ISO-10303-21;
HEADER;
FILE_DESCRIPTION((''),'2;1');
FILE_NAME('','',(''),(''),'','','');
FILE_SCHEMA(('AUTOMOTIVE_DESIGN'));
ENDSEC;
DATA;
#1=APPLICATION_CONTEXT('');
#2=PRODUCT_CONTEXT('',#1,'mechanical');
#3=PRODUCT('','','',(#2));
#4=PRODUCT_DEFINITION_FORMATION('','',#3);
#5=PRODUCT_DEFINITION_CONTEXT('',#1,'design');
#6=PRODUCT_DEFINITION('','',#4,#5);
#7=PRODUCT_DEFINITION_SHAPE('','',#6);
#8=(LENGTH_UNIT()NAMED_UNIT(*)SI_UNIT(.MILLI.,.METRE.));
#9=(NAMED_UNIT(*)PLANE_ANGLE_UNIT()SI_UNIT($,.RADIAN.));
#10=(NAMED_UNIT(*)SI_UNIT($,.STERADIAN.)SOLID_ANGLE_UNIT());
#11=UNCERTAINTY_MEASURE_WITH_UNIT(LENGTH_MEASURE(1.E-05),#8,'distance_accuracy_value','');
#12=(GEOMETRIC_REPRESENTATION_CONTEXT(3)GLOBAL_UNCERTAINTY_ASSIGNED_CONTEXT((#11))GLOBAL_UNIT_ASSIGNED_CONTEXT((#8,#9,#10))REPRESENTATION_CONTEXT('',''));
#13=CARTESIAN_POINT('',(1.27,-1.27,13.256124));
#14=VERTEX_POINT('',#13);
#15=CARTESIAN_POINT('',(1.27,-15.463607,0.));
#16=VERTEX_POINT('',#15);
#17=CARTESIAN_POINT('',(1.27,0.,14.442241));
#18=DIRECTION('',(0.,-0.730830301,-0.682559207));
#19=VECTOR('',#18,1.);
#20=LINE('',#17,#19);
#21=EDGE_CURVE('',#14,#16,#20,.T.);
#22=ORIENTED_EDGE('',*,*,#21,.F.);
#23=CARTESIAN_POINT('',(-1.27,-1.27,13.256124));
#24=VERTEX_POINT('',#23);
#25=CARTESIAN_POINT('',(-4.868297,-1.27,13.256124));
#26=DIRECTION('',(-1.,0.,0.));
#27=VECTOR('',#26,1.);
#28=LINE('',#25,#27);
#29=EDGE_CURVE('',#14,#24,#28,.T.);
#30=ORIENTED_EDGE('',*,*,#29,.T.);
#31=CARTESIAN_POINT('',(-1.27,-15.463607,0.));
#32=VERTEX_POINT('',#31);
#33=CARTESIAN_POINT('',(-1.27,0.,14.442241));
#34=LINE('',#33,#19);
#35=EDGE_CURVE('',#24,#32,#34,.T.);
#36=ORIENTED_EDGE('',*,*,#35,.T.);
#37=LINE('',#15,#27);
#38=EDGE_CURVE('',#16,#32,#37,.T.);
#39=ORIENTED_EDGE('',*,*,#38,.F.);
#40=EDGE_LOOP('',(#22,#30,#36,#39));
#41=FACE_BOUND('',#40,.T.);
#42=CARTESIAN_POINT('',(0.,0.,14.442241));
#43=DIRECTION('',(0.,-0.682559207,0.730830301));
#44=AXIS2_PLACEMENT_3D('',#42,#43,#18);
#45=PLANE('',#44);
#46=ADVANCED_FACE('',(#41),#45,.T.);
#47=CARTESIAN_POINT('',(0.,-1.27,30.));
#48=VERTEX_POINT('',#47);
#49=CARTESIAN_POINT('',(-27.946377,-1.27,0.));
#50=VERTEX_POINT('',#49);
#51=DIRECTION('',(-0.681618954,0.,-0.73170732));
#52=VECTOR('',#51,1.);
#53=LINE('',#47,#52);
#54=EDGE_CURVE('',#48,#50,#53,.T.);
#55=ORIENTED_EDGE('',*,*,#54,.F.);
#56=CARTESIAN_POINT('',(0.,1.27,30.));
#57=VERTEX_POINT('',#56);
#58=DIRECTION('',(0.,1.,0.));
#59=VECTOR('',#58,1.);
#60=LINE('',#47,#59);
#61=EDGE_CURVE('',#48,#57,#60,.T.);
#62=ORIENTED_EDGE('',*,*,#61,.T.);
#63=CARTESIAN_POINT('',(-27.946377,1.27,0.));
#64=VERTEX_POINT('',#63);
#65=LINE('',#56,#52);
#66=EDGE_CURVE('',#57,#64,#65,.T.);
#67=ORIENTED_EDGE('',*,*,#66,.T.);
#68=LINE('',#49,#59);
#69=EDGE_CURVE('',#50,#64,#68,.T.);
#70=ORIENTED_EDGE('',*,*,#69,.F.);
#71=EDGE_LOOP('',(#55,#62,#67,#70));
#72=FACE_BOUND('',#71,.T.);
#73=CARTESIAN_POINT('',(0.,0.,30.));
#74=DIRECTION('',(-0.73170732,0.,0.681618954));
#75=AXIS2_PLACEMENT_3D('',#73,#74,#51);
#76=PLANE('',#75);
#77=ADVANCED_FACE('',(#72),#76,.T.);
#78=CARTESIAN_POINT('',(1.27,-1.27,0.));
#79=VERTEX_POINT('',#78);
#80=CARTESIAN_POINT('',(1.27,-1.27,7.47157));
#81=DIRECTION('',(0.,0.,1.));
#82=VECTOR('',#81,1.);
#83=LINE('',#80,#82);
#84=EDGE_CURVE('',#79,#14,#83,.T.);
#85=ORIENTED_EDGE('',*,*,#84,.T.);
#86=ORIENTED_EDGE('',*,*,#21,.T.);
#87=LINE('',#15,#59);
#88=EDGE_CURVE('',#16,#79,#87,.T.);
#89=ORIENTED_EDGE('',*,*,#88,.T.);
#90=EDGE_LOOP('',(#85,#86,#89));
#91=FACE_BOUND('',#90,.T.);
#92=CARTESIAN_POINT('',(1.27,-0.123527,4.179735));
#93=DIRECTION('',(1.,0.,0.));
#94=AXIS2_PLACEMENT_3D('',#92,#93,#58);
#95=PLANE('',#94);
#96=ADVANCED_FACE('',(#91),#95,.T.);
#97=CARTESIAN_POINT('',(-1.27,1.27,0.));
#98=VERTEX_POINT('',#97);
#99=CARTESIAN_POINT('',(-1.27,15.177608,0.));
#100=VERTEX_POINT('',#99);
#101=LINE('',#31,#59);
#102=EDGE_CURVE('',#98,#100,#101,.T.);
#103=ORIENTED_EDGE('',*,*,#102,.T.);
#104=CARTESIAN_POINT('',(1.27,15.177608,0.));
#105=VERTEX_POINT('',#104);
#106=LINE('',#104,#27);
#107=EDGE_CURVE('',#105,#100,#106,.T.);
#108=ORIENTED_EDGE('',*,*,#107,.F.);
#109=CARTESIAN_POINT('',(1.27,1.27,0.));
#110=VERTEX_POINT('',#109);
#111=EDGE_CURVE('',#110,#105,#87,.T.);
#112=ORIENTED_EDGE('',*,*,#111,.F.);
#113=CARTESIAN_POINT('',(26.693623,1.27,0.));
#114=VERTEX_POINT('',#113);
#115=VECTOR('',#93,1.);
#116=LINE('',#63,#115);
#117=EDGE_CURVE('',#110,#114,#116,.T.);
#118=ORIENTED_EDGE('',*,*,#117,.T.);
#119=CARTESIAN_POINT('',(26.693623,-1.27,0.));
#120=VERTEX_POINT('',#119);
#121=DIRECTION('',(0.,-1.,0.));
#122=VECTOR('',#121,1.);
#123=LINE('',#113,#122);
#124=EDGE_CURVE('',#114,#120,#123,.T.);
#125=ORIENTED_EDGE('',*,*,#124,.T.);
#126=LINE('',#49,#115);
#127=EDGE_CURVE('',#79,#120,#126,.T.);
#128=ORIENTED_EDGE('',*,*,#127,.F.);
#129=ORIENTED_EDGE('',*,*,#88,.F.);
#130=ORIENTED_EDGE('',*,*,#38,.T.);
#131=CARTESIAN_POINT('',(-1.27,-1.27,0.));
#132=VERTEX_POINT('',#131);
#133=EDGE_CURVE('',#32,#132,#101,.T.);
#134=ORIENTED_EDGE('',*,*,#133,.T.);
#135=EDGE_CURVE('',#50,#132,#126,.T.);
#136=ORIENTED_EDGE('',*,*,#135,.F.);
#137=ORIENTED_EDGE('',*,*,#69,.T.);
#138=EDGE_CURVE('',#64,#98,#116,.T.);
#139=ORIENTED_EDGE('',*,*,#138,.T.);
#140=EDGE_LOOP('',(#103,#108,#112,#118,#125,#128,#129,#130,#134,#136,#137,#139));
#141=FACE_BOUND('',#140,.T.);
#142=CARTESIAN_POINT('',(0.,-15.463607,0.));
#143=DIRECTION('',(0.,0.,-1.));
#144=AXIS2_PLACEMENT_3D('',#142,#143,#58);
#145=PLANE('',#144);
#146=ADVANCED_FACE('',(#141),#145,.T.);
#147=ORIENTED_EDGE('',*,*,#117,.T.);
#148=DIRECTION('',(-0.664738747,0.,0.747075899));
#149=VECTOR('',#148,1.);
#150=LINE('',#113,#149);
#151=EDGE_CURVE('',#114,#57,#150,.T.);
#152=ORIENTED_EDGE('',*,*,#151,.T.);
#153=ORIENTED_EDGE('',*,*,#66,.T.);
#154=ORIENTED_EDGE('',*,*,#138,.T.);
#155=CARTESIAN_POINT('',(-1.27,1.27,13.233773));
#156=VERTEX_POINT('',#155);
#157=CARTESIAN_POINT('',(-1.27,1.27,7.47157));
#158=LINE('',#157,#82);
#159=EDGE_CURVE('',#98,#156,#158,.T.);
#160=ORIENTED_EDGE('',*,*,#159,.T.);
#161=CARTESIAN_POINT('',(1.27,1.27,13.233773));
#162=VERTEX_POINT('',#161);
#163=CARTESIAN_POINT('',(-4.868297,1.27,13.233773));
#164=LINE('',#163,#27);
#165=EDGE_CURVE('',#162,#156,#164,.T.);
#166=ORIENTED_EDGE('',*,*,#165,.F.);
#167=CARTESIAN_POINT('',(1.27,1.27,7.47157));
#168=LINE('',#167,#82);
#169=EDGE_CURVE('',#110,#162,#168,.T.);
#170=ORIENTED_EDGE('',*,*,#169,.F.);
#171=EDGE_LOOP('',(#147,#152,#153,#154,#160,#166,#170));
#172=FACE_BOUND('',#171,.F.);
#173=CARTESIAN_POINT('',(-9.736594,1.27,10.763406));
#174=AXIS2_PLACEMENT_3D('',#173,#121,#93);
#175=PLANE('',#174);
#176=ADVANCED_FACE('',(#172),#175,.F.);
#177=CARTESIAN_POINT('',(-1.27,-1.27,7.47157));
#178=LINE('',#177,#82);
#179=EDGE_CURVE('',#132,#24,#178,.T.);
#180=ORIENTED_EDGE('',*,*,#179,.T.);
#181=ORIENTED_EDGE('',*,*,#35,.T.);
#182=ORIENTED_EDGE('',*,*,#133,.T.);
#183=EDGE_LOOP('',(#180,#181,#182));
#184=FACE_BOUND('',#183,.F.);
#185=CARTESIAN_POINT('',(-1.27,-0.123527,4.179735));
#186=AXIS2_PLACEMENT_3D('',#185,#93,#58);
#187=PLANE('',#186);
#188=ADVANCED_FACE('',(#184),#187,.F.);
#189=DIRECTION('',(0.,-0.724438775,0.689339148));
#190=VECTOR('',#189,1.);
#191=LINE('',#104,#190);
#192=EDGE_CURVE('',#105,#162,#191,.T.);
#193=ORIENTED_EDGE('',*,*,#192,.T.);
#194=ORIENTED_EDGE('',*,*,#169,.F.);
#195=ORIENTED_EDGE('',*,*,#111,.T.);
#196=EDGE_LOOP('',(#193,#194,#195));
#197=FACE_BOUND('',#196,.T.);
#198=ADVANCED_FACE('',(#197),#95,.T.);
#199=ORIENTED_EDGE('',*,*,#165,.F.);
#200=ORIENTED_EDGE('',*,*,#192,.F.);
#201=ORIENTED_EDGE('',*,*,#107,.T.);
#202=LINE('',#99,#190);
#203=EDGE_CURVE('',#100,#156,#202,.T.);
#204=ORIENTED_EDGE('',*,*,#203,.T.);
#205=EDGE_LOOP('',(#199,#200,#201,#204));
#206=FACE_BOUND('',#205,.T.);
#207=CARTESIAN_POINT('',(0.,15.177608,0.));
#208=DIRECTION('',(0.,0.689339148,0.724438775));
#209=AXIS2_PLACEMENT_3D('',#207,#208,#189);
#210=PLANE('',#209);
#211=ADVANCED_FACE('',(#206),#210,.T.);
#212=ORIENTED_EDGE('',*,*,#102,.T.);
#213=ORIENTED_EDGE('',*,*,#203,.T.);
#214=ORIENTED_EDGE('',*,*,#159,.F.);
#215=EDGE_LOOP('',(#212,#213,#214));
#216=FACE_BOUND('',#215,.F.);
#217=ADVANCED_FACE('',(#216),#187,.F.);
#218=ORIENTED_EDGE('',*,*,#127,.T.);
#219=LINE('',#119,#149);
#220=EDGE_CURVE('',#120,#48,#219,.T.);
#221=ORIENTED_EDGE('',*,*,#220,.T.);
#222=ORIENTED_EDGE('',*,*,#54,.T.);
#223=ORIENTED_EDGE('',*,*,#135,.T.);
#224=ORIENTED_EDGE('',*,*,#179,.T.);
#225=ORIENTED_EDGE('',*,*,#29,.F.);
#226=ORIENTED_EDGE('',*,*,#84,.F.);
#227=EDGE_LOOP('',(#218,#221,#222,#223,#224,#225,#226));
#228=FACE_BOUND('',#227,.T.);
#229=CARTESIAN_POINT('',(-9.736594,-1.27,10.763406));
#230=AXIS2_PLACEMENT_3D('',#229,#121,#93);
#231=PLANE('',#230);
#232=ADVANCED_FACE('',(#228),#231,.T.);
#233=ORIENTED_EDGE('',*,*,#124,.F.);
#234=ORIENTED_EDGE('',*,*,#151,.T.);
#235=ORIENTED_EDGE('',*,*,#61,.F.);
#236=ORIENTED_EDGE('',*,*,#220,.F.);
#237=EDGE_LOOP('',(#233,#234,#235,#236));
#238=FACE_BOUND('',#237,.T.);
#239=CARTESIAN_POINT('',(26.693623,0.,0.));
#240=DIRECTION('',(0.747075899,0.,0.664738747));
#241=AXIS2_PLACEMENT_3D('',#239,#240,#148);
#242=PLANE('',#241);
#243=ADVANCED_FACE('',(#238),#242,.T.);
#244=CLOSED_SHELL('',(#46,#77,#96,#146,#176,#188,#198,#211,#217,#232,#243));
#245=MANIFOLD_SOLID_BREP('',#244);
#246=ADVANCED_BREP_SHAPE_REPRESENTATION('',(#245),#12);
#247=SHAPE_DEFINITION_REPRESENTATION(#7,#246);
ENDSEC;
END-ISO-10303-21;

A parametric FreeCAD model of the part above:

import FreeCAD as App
import Part
import Sketcher
from FreeCAD import Vector
Q = App.Units.Quantity


def add_polygon(sketch, points):
    """Adds a closed chain of lines whose ends are joined by coincident constraints."""
    first, n = sketch.GeometryCount, len(points)
    for a, b in zip(points, points[1:] + points[:1]):
        sketch.addGeometry(Part.LineSegment(App.Vector(*a, 0), App.Vector(*b, 0)), False)
    for i in range(n):
        sketch.addConstraint(Sketcher.Constraint("Coincident", first + i, 2, first + (i + 1) % n, 1))

doc = App.newDocument("Part")
body = doc.addObject("PartDesign::Body", "Body")

# Sketch on XZ plane
sketch1 = body.newObject("Sketcher::SketchObject", "Sketch")
sketch1.AttachmentSupport = (doc.getObject("XZ_Plane"), [""])
sketch1.MapMode = "FlatFace"
add_polygon(sketch1, [(-27.946377, 0), (26.693623, 0), (0, 30)])  # lines 0-2
sketch1.addConstraint(Sketcher.Constraint("Horizontal", 0))
sketch1.addConstraint(Sketcher.Constraint("PointOnObject", 0, 2, -1))
sketch1.addConstraint(Sketcher.Constraint("PointOnObject", 1, 2, -2))
sketch1.addConstraint(Sketcher.Constraint("Distance", 2, Q("41 mm")))
sketch1.addConstraint(Sketcher.Constraint("DistanceY", -1, 1, 1, 2, Q("30 mm")))
sketch1.addConstraint(Sketcher.Constraint("DistanceX", 0, 1, 0, 2, Q("54.64 mm")))
pad1 = body.newObject("PartDesign::Pad", "Pad")
pad1.Profile = sketch1
pad1.Length = 2.54
pad1.Midplane = True

# Sketch on YZ plane
sketch2 = body.newObject("Sketcher::SketchObject", "Sketch001")
sketch2.AttachmentSupport = (doc.getObject("YZ_Plane"), [""])
sketch2.MapMode = "FlatFace"
add_polygon(sketch2, [(15.177608, 0), (0, 14.442241), (-15.463607, 0)])  # lines 0-2
sketch2.addConstraint(Sketcher.Constraint("Horizontal", 2))
sketch2.addConstraint(Sketcher.Constraint("PointOnObject", 0, 2, -2))
sketch2.addConstraint(Sketcher.Constraint("PointOnObject", 1, 2, -1))
sketch2.addConstraint(Sketcher.Constraint("Distance", 0, Q("20.95085 mm")))
sketch2.addConstraint(Sketcher.Constraint("DistanceX", 2, 1, 2, 2, Q("30.641215 mm")))
sketch2.addConstraint(Sketcher.Constraint("DistanceY", -1, 1, 0, 2, Q("14.442241 mm")))
pad2 = body.newObject("PartDesign::Pad", "Pad001")
pad2.Profile = sketch2
pad2.Length = 2.54
pad2.Midplane = True

doc.recompute()
